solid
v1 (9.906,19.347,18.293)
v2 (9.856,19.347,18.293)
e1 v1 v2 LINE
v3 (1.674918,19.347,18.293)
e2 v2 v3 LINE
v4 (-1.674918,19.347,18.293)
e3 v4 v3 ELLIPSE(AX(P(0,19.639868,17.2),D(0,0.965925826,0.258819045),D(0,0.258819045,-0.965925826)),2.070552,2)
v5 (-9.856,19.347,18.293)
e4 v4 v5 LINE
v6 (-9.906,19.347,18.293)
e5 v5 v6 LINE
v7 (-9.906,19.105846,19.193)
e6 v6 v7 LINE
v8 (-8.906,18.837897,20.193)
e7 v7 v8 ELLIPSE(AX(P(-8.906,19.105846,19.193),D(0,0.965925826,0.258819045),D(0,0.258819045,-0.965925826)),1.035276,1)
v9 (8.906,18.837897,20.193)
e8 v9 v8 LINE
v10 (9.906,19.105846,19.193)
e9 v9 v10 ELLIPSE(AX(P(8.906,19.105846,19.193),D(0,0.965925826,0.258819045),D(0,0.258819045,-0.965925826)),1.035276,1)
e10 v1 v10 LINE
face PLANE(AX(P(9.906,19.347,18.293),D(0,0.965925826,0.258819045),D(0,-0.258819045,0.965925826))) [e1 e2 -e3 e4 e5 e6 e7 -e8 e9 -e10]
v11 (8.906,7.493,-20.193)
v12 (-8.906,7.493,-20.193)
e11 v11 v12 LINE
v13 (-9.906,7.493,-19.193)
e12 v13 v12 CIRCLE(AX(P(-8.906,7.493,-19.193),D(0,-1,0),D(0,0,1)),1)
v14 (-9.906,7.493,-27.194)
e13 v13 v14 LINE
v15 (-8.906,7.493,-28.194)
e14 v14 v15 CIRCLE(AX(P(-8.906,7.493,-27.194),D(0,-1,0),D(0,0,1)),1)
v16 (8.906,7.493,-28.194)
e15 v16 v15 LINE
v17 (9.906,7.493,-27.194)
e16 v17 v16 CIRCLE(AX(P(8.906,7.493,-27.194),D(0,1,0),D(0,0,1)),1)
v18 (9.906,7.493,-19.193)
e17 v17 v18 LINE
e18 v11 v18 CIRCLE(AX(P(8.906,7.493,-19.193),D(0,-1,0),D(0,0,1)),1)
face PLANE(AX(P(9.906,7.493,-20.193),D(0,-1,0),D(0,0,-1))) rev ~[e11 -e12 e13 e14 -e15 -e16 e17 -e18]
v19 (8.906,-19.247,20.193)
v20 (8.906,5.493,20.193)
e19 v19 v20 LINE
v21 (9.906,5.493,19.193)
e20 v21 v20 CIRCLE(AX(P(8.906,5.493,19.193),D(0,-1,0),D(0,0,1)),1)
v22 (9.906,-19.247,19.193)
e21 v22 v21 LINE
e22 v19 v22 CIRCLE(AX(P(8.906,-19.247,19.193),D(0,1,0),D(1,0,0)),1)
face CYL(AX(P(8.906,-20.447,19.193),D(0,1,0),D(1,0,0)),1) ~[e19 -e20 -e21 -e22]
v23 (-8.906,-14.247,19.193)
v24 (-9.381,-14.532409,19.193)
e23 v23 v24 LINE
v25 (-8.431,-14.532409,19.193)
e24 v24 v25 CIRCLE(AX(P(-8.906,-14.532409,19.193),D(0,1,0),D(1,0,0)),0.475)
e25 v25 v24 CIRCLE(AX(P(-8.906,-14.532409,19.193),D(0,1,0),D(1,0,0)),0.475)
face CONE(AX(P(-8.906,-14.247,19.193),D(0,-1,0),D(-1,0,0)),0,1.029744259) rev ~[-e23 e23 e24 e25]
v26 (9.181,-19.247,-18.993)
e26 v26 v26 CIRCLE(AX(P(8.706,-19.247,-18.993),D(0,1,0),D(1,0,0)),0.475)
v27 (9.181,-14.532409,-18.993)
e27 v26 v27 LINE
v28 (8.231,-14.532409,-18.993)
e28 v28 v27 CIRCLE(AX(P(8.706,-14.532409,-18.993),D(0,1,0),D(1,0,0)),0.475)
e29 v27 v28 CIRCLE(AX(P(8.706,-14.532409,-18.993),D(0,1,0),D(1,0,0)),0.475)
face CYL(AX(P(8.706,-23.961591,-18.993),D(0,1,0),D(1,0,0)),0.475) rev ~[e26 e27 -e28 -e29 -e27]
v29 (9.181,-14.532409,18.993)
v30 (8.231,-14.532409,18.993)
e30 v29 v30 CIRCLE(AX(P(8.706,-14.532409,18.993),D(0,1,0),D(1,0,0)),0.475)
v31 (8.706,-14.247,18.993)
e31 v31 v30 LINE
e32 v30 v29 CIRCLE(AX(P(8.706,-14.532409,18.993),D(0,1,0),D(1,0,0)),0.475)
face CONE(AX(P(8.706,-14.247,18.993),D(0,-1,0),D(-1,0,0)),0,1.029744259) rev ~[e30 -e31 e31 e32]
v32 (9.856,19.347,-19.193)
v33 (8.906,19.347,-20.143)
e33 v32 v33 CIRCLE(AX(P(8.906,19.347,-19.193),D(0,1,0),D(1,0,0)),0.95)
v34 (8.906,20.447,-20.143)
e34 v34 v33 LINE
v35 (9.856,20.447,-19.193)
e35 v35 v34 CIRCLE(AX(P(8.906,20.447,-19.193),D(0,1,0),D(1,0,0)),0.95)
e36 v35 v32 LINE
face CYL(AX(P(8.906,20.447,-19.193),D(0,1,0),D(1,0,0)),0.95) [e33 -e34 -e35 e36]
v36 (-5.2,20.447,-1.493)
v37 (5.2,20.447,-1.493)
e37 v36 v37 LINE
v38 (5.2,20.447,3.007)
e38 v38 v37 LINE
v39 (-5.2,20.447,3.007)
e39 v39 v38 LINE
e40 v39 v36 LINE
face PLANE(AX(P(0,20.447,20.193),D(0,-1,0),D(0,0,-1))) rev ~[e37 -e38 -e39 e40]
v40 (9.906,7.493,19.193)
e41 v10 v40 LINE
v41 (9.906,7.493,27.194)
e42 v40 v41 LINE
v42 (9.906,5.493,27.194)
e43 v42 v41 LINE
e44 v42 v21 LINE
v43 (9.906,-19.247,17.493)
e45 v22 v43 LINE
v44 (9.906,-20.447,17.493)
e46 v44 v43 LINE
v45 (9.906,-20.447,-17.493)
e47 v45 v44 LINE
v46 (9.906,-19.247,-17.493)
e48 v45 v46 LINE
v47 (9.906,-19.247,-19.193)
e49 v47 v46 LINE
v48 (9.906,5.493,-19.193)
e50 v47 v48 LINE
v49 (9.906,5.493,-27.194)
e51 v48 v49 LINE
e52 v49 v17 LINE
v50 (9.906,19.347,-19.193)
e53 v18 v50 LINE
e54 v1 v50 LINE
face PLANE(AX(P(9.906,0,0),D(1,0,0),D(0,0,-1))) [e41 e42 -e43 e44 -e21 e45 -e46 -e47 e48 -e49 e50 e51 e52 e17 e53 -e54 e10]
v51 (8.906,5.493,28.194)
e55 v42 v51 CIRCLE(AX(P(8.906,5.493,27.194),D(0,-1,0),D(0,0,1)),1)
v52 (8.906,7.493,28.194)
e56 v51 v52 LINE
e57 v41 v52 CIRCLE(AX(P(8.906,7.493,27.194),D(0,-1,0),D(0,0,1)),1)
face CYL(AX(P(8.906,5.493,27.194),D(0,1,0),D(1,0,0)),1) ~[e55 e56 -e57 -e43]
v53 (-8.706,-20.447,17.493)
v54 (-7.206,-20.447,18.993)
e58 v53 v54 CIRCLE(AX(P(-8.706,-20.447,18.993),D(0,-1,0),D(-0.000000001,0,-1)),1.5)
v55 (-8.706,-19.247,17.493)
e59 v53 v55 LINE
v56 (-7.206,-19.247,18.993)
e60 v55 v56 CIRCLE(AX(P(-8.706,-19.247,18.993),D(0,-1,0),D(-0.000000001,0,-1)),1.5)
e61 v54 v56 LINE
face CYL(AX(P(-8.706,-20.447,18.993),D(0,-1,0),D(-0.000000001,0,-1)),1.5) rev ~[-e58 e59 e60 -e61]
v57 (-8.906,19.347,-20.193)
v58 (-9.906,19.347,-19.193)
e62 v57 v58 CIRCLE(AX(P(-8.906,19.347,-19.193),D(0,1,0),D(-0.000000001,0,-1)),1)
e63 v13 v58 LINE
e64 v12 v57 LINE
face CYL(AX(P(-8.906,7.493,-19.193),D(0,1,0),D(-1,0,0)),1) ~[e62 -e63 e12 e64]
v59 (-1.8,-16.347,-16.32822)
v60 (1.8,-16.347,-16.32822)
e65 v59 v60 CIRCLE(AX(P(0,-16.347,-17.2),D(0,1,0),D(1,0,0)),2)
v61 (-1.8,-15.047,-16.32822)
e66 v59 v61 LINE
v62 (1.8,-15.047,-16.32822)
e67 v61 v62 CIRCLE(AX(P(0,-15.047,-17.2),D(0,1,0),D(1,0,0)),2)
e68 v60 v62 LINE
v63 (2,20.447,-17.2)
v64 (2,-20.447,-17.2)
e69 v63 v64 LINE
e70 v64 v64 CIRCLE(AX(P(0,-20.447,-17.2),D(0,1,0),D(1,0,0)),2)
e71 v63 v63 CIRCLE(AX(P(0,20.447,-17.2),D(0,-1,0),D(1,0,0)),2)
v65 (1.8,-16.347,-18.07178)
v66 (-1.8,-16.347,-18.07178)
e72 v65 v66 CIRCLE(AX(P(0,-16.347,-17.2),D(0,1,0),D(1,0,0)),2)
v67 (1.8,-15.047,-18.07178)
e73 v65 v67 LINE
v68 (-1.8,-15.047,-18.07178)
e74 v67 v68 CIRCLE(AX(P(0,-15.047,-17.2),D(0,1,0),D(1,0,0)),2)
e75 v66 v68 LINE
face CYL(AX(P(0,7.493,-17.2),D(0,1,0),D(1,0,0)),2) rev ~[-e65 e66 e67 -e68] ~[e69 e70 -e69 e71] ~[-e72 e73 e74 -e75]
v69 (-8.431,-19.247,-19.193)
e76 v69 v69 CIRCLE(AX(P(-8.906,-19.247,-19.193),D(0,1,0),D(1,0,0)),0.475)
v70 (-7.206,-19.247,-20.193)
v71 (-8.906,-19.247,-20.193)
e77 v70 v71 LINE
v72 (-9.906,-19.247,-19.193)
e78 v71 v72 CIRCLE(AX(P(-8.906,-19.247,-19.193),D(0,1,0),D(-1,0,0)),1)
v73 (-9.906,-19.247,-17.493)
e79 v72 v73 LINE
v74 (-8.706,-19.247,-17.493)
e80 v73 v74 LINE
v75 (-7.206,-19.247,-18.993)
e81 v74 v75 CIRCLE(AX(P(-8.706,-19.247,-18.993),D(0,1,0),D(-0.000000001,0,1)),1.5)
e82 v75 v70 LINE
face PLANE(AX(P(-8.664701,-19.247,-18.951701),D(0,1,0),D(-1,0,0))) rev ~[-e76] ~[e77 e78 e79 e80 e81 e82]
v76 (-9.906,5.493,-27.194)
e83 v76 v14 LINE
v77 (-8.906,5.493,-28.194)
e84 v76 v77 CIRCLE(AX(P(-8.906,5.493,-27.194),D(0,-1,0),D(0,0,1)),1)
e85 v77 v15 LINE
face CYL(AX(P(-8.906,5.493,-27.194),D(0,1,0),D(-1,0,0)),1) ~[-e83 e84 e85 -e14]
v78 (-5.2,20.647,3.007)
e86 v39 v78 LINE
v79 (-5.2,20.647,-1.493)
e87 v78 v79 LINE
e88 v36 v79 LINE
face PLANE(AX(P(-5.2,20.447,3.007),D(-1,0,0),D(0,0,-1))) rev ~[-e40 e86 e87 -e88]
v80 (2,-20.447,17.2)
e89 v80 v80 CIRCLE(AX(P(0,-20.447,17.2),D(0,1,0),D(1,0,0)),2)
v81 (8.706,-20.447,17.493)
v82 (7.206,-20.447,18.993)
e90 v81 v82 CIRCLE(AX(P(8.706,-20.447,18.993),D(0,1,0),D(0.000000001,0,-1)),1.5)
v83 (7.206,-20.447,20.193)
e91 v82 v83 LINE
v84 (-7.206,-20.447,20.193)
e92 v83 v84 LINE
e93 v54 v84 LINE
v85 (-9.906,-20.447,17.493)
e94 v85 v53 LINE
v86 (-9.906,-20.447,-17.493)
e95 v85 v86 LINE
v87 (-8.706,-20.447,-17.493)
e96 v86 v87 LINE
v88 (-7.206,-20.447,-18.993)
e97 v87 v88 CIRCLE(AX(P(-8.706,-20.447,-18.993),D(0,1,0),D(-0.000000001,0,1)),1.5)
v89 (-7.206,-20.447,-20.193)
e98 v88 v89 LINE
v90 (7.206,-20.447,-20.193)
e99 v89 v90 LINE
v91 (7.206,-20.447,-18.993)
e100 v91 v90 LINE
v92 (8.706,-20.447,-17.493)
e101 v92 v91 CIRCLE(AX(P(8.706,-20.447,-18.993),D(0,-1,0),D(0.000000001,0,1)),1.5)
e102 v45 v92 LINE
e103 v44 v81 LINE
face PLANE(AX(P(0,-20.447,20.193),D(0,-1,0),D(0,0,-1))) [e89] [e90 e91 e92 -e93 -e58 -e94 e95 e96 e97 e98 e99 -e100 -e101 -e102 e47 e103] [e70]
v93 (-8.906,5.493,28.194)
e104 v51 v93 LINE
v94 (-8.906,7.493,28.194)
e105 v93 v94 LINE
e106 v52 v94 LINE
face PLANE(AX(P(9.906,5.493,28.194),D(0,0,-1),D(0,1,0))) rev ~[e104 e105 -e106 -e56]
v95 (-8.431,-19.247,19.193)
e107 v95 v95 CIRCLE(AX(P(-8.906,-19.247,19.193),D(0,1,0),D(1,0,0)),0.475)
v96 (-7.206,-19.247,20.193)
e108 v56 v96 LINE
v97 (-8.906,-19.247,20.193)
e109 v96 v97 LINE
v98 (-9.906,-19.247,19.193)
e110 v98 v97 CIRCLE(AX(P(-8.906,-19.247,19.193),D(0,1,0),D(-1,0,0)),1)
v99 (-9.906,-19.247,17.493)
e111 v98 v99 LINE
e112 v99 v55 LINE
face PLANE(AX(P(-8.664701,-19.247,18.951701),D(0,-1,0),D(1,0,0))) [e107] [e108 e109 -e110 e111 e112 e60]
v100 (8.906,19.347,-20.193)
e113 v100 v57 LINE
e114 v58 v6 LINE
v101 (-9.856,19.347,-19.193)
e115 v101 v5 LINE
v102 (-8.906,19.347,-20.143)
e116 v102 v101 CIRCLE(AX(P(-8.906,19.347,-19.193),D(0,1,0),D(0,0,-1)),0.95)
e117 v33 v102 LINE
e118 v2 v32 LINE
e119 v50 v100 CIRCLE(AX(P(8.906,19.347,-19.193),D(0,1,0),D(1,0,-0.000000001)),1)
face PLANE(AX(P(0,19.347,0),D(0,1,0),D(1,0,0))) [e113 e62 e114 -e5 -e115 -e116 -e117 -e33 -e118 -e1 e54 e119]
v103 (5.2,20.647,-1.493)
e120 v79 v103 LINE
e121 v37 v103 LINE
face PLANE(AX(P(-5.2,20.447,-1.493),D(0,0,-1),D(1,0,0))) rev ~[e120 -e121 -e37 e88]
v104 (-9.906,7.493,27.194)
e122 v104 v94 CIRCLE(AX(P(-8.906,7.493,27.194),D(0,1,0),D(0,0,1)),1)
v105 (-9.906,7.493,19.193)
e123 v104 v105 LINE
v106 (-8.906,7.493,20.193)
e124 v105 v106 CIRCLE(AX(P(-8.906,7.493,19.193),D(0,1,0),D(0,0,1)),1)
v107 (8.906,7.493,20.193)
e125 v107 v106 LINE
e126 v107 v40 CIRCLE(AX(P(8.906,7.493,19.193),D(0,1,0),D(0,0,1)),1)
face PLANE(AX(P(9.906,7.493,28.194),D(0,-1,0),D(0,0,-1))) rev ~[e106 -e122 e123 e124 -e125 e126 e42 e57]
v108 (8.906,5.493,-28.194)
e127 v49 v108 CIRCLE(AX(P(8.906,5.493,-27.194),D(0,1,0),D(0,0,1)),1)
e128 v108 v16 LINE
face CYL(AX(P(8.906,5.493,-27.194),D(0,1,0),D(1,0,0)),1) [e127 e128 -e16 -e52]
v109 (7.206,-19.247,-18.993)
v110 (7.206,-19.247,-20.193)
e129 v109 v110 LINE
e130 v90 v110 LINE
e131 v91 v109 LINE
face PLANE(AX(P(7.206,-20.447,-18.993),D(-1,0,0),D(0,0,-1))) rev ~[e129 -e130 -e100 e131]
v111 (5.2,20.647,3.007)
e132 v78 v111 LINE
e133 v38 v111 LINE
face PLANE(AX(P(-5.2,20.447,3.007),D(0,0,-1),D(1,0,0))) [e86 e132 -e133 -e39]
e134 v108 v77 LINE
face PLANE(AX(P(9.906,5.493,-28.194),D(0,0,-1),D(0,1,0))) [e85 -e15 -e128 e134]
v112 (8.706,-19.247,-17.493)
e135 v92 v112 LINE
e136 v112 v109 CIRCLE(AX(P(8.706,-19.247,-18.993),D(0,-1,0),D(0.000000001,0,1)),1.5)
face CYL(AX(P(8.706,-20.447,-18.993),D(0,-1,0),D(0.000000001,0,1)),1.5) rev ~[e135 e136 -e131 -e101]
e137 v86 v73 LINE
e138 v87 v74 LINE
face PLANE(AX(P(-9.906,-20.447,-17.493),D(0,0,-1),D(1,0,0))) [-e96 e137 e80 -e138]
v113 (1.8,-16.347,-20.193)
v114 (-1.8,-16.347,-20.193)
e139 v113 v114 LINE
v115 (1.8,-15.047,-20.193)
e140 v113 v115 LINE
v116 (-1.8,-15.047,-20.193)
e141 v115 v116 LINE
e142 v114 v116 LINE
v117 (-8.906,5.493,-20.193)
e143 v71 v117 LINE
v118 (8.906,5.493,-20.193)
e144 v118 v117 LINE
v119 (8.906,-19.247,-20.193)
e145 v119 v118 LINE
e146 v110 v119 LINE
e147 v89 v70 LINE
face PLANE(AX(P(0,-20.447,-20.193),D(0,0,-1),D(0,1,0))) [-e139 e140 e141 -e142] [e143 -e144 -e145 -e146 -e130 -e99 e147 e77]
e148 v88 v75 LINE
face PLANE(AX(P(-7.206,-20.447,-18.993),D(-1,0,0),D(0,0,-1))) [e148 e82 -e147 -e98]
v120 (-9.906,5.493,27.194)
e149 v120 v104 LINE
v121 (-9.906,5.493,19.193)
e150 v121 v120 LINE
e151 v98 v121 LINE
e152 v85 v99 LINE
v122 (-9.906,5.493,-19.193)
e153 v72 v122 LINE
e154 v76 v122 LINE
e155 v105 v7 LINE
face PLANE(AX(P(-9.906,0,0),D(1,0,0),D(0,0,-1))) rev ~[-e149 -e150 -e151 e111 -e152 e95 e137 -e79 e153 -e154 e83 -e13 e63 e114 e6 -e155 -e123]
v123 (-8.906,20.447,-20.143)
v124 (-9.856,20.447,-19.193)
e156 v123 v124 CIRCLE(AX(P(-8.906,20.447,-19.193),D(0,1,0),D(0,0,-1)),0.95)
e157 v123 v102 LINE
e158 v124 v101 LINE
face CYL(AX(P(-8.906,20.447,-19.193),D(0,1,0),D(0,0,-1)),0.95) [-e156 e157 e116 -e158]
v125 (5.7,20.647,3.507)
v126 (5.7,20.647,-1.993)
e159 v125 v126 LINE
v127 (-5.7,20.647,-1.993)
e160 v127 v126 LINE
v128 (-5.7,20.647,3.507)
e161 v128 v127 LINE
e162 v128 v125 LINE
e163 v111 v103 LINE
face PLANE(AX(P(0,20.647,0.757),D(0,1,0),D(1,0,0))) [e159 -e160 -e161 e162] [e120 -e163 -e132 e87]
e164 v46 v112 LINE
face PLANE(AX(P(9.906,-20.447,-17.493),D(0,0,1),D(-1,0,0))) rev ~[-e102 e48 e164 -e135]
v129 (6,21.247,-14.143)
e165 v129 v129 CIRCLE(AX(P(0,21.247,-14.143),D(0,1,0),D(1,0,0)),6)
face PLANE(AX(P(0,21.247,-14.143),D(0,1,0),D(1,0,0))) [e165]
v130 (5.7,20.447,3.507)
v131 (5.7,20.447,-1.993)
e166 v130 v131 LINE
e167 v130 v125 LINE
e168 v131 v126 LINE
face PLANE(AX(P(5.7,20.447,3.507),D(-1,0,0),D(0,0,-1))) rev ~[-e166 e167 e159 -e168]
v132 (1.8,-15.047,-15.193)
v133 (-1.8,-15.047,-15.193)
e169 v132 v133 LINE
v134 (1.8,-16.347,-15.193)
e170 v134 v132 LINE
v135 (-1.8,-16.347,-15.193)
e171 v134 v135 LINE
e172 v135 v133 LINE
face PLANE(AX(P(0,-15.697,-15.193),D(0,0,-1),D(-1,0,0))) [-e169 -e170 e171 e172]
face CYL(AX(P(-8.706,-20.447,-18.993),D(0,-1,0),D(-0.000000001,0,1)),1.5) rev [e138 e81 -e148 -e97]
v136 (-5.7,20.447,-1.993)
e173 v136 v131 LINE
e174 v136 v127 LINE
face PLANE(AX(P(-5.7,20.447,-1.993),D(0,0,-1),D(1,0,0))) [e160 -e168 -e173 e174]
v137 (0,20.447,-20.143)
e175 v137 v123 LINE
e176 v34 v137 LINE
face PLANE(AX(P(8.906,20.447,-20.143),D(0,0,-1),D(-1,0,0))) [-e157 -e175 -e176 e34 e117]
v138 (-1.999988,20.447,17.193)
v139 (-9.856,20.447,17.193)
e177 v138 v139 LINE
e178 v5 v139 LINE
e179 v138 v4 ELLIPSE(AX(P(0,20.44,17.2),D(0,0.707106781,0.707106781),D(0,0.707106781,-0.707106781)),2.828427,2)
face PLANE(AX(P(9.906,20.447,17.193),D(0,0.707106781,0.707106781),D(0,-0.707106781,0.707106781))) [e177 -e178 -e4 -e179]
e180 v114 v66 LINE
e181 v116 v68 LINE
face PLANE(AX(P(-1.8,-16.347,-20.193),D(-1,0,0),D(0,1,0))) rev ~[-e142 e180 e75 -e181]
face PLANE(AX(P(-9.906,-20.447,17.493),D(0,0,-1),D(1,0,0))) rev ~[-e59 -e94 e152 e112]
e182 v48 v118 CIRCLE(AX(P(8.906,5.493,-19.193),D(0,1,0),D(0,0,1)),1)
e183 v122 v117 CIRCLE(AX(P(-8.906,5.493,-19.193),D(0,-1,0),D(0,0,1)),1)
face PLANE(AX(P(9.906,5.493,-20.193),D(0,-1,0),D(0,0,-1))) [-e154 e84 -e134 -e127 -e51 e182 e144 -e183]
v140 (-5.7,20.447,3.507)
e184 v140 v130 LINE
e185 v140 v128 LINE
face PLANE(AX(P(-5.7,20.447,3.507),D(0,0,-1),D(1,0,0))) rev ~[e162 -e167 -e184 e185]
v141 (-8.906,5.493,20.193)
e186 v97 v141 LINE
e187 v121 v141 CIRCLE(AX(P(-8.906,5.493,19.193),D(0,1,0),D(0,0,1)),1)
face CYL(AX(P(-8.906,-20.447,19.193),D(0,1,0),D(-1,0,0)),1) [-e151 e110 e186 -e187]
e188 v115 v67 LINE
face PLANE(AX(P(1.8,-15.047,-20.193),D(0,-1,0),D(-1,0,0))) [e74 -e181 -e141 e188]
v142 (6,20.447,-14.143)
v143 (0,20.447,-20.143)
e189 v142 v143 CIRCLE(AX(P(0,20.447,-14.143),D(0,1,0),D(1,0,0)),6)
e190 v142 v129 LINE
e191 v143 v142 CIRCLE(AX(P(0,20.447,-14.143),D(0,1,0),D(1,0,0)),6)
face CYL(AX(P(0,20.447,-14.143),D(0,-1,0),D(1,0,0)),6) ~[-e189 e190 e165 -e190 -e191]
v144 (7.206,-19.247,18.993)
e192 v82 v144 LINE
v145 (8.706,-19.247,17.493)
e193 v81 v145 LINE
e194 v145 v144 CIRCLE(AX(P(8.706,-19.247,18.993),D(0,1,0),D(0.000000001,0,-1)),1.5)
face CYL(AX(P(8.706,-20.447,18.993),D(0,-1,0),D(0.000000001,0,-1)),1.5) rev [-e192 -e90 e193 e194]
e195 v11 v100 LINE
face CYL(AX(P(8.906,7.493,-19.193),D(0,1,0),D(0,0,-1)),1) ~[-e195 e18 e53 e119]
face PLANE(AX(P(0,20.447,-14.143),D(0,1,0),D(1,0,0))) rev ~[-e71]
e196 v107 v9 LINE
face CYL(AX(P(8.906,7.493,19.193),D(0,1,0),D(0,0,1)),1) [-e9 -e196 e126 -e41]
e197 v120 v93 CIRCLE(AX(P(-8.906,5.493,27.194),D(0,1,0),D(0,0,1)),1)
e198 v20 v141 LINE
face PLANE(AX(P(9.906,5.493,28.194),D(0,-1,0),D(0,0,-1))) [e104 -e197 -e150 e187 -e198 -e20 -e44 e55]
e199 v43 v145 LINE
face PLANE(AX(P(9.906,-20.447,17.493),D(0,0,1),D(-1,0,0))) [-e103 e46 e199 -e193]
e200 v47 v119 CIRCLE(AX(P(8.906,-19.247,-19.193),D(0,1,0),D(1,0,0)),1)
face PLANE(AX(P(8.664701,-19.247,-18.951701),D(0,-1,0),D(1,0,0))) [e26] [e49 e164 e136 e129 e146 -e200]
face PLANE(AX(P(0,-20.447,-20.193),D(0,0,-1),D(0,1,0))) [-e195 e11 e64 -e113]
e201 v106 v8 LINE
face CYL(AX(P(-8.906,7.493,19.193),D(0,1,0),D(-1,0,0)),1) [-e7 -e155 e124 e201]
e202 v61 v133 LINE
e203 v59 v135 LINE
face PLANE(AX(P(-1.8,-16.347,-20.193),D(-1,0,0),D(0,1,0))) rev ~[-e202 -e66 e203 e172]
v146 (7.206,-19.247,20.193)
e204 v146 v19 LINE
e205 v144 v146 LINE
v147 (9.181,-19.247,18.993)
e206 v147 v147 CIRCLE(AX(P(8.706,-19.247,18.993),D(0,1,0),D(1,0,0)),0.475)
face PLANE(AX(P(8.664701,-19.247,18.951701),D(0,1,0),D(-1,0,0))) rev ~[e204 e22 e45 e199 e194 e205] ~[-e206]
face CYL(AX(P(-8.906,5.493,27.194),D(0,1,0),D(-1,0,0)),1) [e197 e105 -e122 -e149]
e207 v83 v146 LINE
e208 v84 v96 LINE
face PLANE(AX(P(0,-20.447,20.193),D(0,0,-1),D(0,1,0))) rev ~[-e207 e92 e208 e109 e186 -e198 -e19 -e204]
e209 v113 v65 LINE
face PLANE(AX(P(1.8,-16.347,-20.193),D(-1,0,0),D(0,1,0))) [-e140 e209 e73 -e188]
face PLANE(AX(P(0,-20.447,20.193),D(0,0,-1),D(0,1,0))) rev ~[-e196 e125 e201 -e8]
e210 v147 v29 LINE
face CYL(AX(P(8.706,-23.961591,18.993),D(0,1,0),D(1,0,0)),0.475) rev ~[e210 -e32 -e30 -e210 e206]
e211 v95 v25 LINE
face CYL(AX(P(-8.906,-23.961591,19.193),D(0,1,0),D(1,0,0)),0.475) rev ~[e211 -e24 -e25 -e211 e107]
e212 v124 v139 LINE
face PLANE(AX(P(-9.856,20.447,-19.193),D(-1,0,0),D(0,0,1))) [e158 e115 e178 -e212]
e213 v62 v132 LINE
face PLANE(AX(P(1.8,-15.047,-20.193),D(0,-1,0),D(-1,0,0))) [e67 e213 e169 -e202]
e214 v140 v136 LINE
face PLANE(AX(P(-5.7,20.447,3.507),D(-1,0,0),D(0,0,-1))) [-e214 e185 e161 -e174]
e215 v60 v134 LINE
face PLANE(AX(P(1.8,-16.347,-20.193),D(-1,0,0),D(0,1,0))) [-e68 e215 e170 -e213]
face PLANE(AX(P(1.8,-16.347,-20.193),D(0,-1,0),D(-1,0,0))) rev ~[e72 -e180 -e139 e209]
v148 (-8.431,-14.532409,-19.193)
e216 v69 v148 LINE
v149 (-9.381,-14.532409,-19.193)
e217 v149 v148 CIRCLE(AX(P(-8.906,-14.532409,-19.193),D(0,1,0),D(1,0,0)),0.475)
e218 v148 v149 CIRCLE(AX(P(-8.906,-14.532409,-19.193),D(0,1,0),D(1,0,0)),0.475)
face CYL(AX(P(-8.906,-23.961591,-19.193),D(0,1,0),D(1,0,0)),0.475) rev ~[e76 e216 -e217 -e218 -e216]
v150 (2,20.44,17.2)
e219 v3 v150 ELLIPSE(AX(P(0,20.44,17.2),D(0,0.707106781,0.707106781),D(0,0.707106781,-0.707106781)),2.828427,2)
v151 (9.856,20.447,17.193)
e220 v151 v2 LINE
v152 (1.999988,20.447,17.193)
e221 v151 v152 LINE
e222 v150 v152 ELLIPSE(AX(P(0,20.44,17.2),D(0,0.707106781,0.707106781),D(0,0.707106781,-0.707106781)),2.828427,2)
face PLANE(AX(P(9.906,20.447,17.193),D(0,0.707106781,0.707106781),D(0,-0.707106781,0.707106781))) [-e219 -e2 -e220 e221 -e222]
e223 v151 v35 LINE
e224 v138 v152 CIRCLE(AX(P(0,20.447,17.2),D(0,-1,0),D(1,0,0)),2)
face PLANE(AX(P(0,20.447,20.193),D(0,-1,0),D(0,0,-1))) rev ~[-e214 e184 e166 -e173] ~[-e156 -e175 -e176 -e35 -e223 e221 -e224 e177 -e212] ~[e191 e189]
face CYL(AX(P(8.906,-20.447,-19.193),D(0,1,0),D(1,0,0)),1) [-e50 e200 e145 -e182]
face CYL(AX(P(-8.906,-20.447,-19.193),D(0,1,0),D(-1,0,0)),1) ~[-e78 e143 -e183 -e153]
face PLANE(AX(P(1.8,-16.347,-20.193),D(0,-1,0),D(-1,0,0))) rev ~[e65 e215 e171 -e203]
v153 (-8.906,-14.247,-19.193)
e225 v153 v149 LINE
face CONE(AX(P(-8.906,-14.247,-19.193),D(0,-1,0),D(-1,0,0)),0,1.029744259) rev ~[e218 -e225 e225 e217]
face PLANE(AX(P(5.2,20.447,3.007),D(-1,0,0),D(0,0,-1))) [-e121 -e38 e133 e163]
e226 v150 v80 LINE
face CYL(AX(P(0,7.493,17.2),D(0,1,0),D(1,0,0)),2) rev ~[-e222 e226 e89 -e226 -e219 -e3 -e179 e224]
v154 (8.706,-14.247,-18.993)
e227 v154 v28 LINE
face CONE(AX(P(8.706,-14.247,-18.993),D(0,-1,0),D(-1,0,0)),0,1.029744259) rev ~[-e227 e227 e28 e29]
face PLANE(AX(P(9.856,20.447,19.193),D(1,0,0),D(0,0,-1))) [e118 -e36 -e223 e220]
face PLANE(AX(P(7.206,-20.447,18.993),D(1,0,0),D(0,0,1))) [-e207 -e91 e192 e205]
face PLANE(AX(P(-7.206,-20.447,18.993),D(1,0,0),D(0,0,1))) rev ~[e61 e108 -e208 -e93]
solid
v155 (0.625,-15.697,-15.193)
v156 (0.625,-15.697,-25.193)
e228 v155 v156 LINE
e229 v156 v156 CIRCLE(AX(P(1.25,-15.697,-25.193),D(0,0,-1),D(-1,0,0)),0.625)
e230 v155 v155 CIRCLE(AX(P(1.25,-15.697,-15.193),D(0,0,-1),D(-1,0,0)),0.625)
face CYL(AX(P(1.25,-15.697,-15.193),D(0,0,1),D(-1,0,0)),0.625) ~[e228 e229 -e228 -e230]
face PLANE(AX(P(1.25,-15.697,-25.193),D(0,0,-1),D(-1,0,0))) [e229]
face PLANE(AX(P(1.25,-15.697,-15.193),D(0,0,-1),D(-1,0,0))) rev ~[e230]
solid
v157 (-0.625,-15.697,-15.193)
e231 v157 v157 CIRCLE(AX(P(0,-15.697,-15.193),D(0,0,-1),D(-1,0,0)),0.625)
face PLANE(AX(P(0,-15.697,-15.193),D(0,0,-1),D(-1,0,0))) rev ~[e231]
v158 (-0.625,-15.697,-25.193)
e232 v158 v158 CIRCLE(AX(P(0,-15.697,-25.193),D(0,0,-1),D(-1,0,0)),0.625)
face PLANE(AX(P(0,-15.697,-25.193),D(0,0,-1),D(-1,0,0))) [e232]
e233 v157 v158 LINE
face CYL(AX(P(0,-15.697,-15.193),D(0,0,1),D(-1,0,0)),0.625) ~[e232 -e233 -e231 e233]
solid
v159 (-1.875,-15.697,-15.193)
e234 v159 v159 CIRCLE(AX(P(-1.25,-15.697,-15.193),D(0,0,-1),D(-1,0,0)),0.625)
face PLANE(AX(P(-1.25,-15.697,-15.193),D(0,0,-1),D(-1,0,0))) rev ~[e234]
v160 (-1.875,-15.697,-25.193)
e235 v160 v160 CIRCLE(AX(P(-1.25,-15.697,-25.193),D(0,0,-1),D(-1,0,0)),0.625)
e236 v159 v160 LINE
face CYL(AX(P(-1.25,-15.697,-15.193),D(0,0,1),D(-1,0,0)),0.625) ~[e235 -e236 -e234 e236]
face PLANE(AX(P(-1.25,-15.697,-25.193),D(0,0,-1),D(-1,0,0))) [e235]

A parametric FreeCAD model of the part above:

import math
import FreeCAD as App
import Part
import Sketcher
from FreeCAD import Vector
Q = App.Units.Quantity


def edges_at(feature, points):
    """Names of the edges that pass closest to the given points."""
    edges = feature.Shape.Edges
    near = lambda p: min(range(len(edges)), key=lambda i: edges[i].distToShape(Part.Vertex(*p))[0])
    return sorted({f"Edge{near(p) + 1}" for p in points})

doc = App.newDocument("Part")
body = doc.addObject("PartDesign::Body", "Body")

# Sketch on YZ plane
sketch1 = doc.addObject("Sketcher::SketchObject", "Sketch")
body.addObject(sketch1)
sketch1.AttachmentSupport = (doc.YZ_Plane, [""])
sketch1.MapMode = "FlatFace"
sketch1.addGeometry([
    Part.LineSegment(Vector(20.447, 20.193, 0), Vector(-20.447, 20.193, 0)),
    Part.LineSegment(Vector(-20.447, 20.193, 0), Vector(-20.447, -20.193, 0)),
    Part.LineSegment(Vector(-20.447, -20.193, 0), Vector(20.447, -20.193, 0)),
    Part.LineSegment(Vector(20.447, -20.193, 0), Vector(20.447, 20.193, 0)),
], False)
sketch1.addConstraint([
    Sketcher.Constraint("Coincident", 0, 2, 1, 1),
    Sketcher.Constraint("Coincident", 1, 2, 2, 1),
    Sketcher.Constraint("Coincident", 2, 2, 3, 1),
    Sketcher.Constraint("Coincident", 3, 2, 0, 1),
    Sketcher.Constraint("Horizontal", 0),
    Sketcher.Constraint("Vertical", 1),
    Sketcher.Constraint("Horizontal", 2),
    Sketcher.Constraint("Vertical", 3),
    Sketcher.Constraint("Symmetric", 0, 2, 2, 2, -1, 1),
    Sketcher.Constraint("DistanceX", 0, 2, 0, 1, 40.894),
    Sketcher.Constraint("DistanceY", 1, 2, 1, 1, 40.386),
])
pad1 = doc.addObject("PartDesign::Pad", "Pad")
body.addObject(pad1)
pad1.Profile = sketch1
pad1.Length = 19.812
pad1.Midplane = True

# Sketch on YZ plane
sketch2 = doc.addObject("Sketcher::SketchObject", "Sketch001")
body.addObject(sketch2)
sketch2.AttachmentSupport = (doc.YZ_Plane, [""])
sketch2.MapMode = "FlatFace"
sketch2.AttachmentOffset = App.Placement(Vector(0, 0, 9.906), App.Rotation())
sketch2.addGeometry([
    Part.LineSegment(Vector(7.493, 28.194, 0), Vector(5.493, 28.194, 0)),  # 0
    Part.LineSegment(Vector(5.493, 28.194, 0), Vector(5.493, 20.193, 0)),  # 1
    Part.LineSegment(Vector(5.493, 20.193, 0), Vector(7.493, 20.193, 0)),  # 2
    Part.LineSegment(Vector(7.493, 20.193, 0), Vector(7.493, 28.194, 0)),  # 3
    Part.LineSegment(Vector(7.493, -20.193, 0), Vector(5.493, -20.193, 0)),  # 4
    Part.LineSegment(Vector(5.493, -20.193, 0), Vector(5.493, -28.194, 0)),  # 5
    Part.LineSegment(Vector(5.493, -28.194, 0), Vector(7.493, -28.194, 0)),  # 6
    Part.LineSegment(Vector(7.493, -28.194, 0), Vector(7.493, -20.193, 0)),  # 7
], False)
sketch2.addConstraint([
    Sketcher.Constraint("Coincident", 0, 2, 1, 1),
    Sketcher.Constraint("Coincident", 1, 2, 2, 1),
    Sketcher.Constraint("Coincident", 2, 2, 3, 1),
    Sketcher.Constraint("Coincident", 3, 2, 0, 1),
    Sketcher.Constraint("Coincident", 4, 2, 5, 1),
    Sketcher.Constraint("Coincident", 5, 2, 6, 1),
    Sketcher.Constraint("Coincident", 6, 2, 7, 1),
    Sketcher.Constraint("Coincident", 7, 2, 4, 1),
    Sketcher.Constraint("Horizontal", 0),
    Sketcher.Constraint("Vertical", 1),
    Sketcher.Constraint("Horizontal", 2),
    Sketcher.Constraint("Vertical", 3),
    Sketcher.Constraint("Horizontal", 4),
    Sketcher.Constraint("Vertical", 5),
    Sketcher.Constraint("Horizontal", 6),
    Sketcher.Constraint("Vertical", 7),
    Sketcher.Constraint("Symmetric", 1, 2, 4, 2, -1),
    Sketcher.Constraint("Symmetric", 3, 2, 6, 2, -1),
    Sketcher.Constraint("DistanceX", 0, 2, 0, 1, 2.0),
    Sketcher.Constraint("DistanceY", 1, 2, 1, 1, 8.001),
    Sketcher.Constraint("DistanceX", -1, 1, 0, 2, 5.493),
    Sketcher.Constraint("DistanceY", -1, 1, 0, 2, 28.194),
])
pad2 = doc.addObject("PartDesign::Pad", "Pad001")
body.addObject(pad2)
pad2.Profile = sketch2
pad2.Length = 19.812
pad2.Reversed = True

# Sketch on XZ plane
sketch3 = doc.addObject("Sketcher::SketchObject", "Sketch002")
body.addObject(sketch3)
sketch3.AttachmentSupport = (doc.XZ_Plane, [""])
sketch3.MapMode = "FlatFace"
sketch3.AttachmentOffset = App.Placement(Vector(0, 0, -7.493), App.Rotation())
sketch3.addGeometry([
    Part.Circle(Vector(0, -17.2, 0), Vector(0, 0, 1), 2),
    Part.Circle(Vector(0, 17.2, 0), Vector(0, 0, 1), 2),
], False)
sketch3.addConstraint([
    Sketcher.Constraint("Equal", 0, 1),
    Sketcher.Constraint("Symmetric", 0, 3, 1, 3, -1, 1),
    Sketcher.Constraint("PointOnObject", 0, 3, -2),
    Sketcher.Constraint("Diameter", 0, 4.0),
    Sketcher.Constraint("DistanceY", 0, 3, -1, 1, 17.2),
])
pocket1 = doc.addObject("PartDesign::Pocket", "Pocket")
body.addObject(pocket1)
pocket1.Profile = sketch3
pocket1.Type = "ThroughAll"
pocket1.Midplane = True

# Sketch on XZ plane
sketch4 = doc.addObject("Sketcher::SketchObject", "Sketch003")
body.addObject(sketch4)
sketch4.AttachmentSupport = (doc.XZ_Plane, [""])
sketch4.MapMode = "FlatFace"
sketch4.AttachmentOffset = App.Placement(Vector(0, 0, -20.447), App.Rotation())
sketch4.addGeometry(Part.Circle(Vector(0, -14.143, 0), Vector(0, 0, 1), 6), False)
sketch4.addConstraint([
    Sketcher.Constraint("PointOnObject", 0, 3, -2),
    Sketcher.Constraint("Diameter", 0, 12.0),
    Sketcher.Constraint("DistanceY", 0, 3, -1, 1, 14.143),
])
pad3 = doc.addObject("PartDesign::Pad", "Pad002")
body.addObject(pad3)
pad3.Profile = sketch4
pad3.Length = 0.8
pad3.Reversed = True
doc.recompute()

fillet = doc.addObject("PartDesign::Fillet", "Fillet")
body.addObject(fillet)
fillet.Base = (pad3, edges_at(pad3, [
    (9.906, -7.477, -20.193),
    (-9.906, 13.97, -20.193),
    (9.906, 13.97, -20.193),
    (-9.906, -7.477, 20.193),
    (9.906, -7.477, 20.193),
    (9.906, 6.493, 28.194),
    (-9.906, 6.493, 28.194),
    (9.906, 6.493, -28.194),
    (-9.906, 6.493, -28.194),
    (9.906, 13.97, 20.193),
    (-9.906, -7.477, -20.193),
    (-9.906, 13.97, 20.193),
]))
fillet.Radius = 1

# Sketch on XZ plane
sketch5 = doc.addObject("Sketcher::SketchObject", "Sketch004")
body.addObject(sketch5)
sketch5.AttachmentSupport = (doc.XZ_Plane, [""])
sketch5.MapMode = "FlatFace"
sketch5.AttachmentOffset = App.Placement(Vector(0, 0, -20.447), App.Rotation())
sketch5.addGeometry([
    Part.LineSegment(Vector(8.906, -20.193, 0), Vector(-8.906, -20.193, 0)),  # 0
    Part.ArcOfCircle(Part.Circle(Vector(-8.906, -19.193, 0), Vector(0, 0, 1), 1), math.radians(-180), math.radians(-90)),  # 1
    Part.LineSegment(Vector(-9.906, -19.193, 0), Vector(-9.906, 19.193, 0)),  # 2
    Part.ArcOfCircle(Part.Circle(Vector(-8.906, 19.193, 0), Vector(0, 0, 1), 1), math.radians(90), math.radians(180)),  # 3
    Part.LineSegment(Vector(-8.906, 20.193, 0), Vector(8.906, 20.193, 0)),  # 4
    Part.ArcOfCircle(Part.Circle(Vector(8.906, 19.193, 0), Vector(0, 0, 1), 1), math.radians(0), math.radians(90)),  # 5
    Part.LineSegment(Vector(9.906, 19.193, 0), Vector(9.906, -19.193, 0)),  # 6
    Part.ArcOfCircle(Part.Circle(Vector(8.906, -19.193, 0), Vector(0, 0, 1), 1), math.radians(-90), math.radians(0)),  # 7
    Part.LineSegment(Vector(-8.906, -20.143, 0), Vector(8.906, -20.143, 0)),  # 8
    Part.ArcOfCircle(Part.Circle(Vector(8.906, -19.193, 0), Vector(0, 0, 1), 0.95), math.radians(-90), math.radians(0)),  # 9
    Part.LineSegment(Vector(9.856, -19.193, 0), Vector(9.856, 19.193, 0)),  # 10
    Part.ArcOfCircle(Part.Circle(Vector(8.906, 19.193, 0), Vector(0, 0, 1), 0.95), math.radians(0), math.radians(90)),  # 11
    Part.LineSegment(Vector(8.906, 20.143, 0), Vector(-8.906, 20.143, 0)),  # 12
    Part.ArcOfCircle(Part.Circle(Vector(-8.906, 19.193, 0), Vector(0, 0, 1), 0.95), math.radians(90), math.radians(180)),  # 13
    Part.LineSegment(Vector(-9.856, 19.193, 0), Vector(-9.856, -19.193, 0)),  # 14
    Part.ArcOfCircle(Part.Circle(Vector(-8.906, -19.193, 0), Vector(0, 0, 1), 0.95), math.radians(180), math.radians(270)),  # 15
], False)
sketch5.addConstraint([
    Sketcher.Constraint("Tangent", 0, 2, 1, 2),
    Sketcher.Constraint("Tangent", 1, 1, 2, 1),
    Sketcher.Constraint("Tangent", 2, 2, 3, 2),
    Sketcher.Constraint("Tangent", 3, 1, 4, 1),
    Sketcher.Constraint("Tangent", 4, 2, 5, 2),
    Sketcher.Constraint("Tangent", 5, 1, 6, 1),
    Sketcher.Constraint("Tangent", 6, 2, 7, 2),
    Sketcher.Constraint("Tangent", 7, 1, 0, 1),
    Sketcher.Constraint("Tangent", 8, 2, 9, 1),
    Sketcher.Constraint("Tangent", 9, 2, 10, 1),
    Sketcher.Constraint("Tangent", 10, 2, 11, 1),
    Sketcher.Constraint("Tangent", 11, 2, 12, 1),
    Sketcher.Constraint("Tangent", 12, 2, 13, 1),
    Sketcher.Constraint("Tangent", 13, 2, 14, 1),
    Sketcher.Constraint("Tangent", 14, 2, 15, 1),
    Sketcher.Constraint("Tangent", 15, 2, 8, 1),
    Sketcher.Constraint("Horizontal", 0),
    Sketcher.Constraint("Vertical", 2),
    Sketcher.Constraint("Horizontal", 4),
    Sketcher.Constraint("Vertical", 6),
    Sketcher.Constraint("Horizontal", 8),
    Sketcher.Constraint("Vertical", 10),
    Sketcher.Constraint("Horizontal", 12),
    Sketcher.Constraint("Vertical", 14),
    Sketcher.Constraint("Coincident", 9, 3, 7, 3),
    Sketcher.Constraint("Coincident", 11, 3, 5, 3),
    Sketcher.Constraint("Coincident", 13, 3, 3, 3),
    Sketcher.Constraint("Equal", 1, 3),
    Sketcher.Constraint("Equal", 3, 5),
    Sketcher.Constraint("Equal", 5, 7),
    Sketcher.Constraint("Equal", 13, 15),
    Sketcher.Constraint("Symmetric", 1, 3, 5, 3, -1, 1),
    Sketcher.Constraint("Radius", 1, 1.0),
    Sketcher.Constraint("Radius", 9, 0.95),
    Sketcher.Constraint("DistanceX", 0, 2, 0, 1, 17.812),
    Sketcher.Constraint("DistanceY", 2, 1, 2, 2, 38.386),
])
pocket2 = doc.addObject("PartDesign::Pocket", "Pocket001")
body.addObject(pocket2)
pocket2.Profile = sketch5
pocket2.Length = 1.1
pocket2.Reversed = True

# Sketch on YZ plane
sketch6 = doc.addObject("Sketcher::SketchObject", "Sketch005")
body.addObject(sketch6)
sketch6.AttachmentSupport = (doc.YZ_Plane, [""])
sketch6.MapMode = "FlatFace"
sketch6.AttachmentOffset = App.Placement(Vector(0, 0, 9.906), App.Rotation())
sketch6.addGeometry([
    Part.LineSegment(Vector(19.347, 18.293, 0), Vector(20.447, 17.193, 0)),
    Part.LineSegment(Vector(20.447, 17.193, 0), Vector(20.447, 20.193, 0)),
    Part.LineSegment(Vector(20.447, 20.193, 0), Vector(18.837897, 20.193, 0)),
    Part.LineSegment(Vector(18.837897, 20.193, 0), Vector(19.347, 18.293, 0)),
], False)
sketch6.addConstraint([
    Sketcher.Constraint("Coincident", 0, 2, 1, 1),
    Sketcher.Constraint("Coincident", 1, 2, 2, 1),
    Sketcher.Constraint("Coincident", 2, 2, 3, 1),
    Sketcher.Constraint("Coincident", 3, 2, 0, 1),
    Sketcher.Constraint("Vertical", 1),
    Sketcher.Constraint("Horizontal", 2),
    Sketcher.Constraint("DistanceY", 1, 1, 1, 2, 3.0),
    Sketcher.Constraint("Angle", 0, Q("-45 deg")),
    Sketcher.Constraint("Angle", 3, Q("-75 deg")),
    Sketcher.Constraint("DistanceX", 3, 2, 0, 2, 1.1),
    Sketcher.Constraint("DistanceX", -1, 1, 0, 2, 20.447),
    Sketcher.Constraint("DistanceY", -1, 1, 0, 2, 17.193),
])
pocket3 = doc.addObject("PartDesign::Pocket", "Pocket002")
body.addObject(pocket3)
pocket3.Profile = sketch6
pocket3.Type = "ThroughAll"
pocket3.Midplane = True

# Sketch on XZ plane
sketch7 = doc.addObject("Sketcher::SketchObject", "Sketch006")
body.addObject(sketch7)
sketch7.AttachmentSupport = (doc.XZ_Plane, [""])
sketch7.MapMode = "FlatFace"
sketch7.AttachmentOffset = App.Placement(Vector(0, 0, -20.447), App.Rotation())
sketch7.addGeometry([
    Part.LineSegment(Vector(-5.7, -1.993, 0), Vector(-5.7, 3.507, 0)),  # 0
    Part.LineSegment(Vector(-5.7, 3.507, 0), Vector(5.7, 3.507, 0)),  # 1
    Part.LineSegment(Vector(5.7, 3.507, 0), Vector(5.7, -1.993, 0)),  # 2
    Part.LineSegment(Vector(5.7, -1.993, 0), Vector(-5.7, -1.993, 0)),  # 3
    Part.LineSegment(Vector(5.2, 3.007, 0), Vector(-5.2, 3.007, 0)),  # 4
    Part.LineSegment(Vector(-5.2, 3.007, 0), Vector(-5.2, -1.493, 0)),  # 5
    Part.LineSegment(Vector(-5.2, -1.493, 0), Vector(5.2, -1.493, 0)),  # 6
    Part.LineSegment(Vector(5.2, -1.493, 0), Vector(5.2, 3.007, 0)),  # 7
], False)
sketch7.addConstraint([
    Sketcher.Constraint("Coincident", 0, 2, 1, 1),
    Sketcher.Constraint("Coincident", 1, 2, 2, 1),
    Sketcher.Constraint("Coincident", 2, 2, 3, 1),
    Sketcher.Constraint("Coincident", 3, 2, 0, 1),
    Sketcher.Constraint("Coincident", 4, 2, 5, 1),
    Sketcher.Constraint("Coincident", 5, 2, 6, 1),
    Sketcher.Constraint("Coincident", 6, 2, 7, 1),
    Sketcher.Constraint("Coincident", 7, 2, 4, 1),
    Sketcher.Constraint("Vertical", 0),
    Sketcher.Constraint("Horizontal", 1),
    Sketcher.Constraint("Vertical", 2),
    Sketcher.Constraint("Horizontal", 3),
    Sketcher.Constraint("Horizontal", 4),
    Sketcher.Constraint("Vertical", 5),
    Sketcher.Constraint("Horizontal", 6),
    Sketcher.Constraint("Vertical", 7),
    Sketcher.Constraint("DistanceX", 1, 1, 1, 2, 11.4),
    Sketcher.Constraint("DistanceX", 4, 2, 4, 1, 10.4),
    Sketcher.Constraint("DistanceY", 0, 1, 0, 2, 5.5),
    Sketcher.Constraint("DistanceY", 5, 2, 5, 1, 4.5),
    Sketcher.Constraint("DistanceY", 3, 2, 4, 2, 5.0),
    Sketcher.Constraint("DistanceX", 0, 2, -1, 1, 5.7),
    Sketcher.Constraint("DistanceX", 4, 2, -1, 1, 5.2),
    Sketcher.Constraint("DistanceY", -1, 1, 0, 2, 3.507),
])
pad4 = doc.addObject("PartDesign::Pad", "Pad003")
body.addObject(pad4)
pad4.Profile = sketch7
pad4.Length = 0.2
pad4.Reversed = True

# Sketch on XZ plane
sketch8 = doc.addObject("Sketcher::SketchObject", "Sketch007")
body.addObject(sketch8)
sketch8.AttachmentSupport = (doc.XZ_Plane, [""])
sketch8.MapMode = "FlatFace"
sketch8.AttachmentOffset = App.Placement(Vector(0, 0, 20.447), App.Rotation())
sketch8.addGeometry([
    Part.LineSegment(Vector(-7.206, 20.193, 0), Vector(-9.906, 20.193, 0)),  # 0
    Part.LineSegment(Vector(-9.906, 20.193, 0), Vector(-9.906, 17.493, 0)),  # 1
    Part.LineSegment(Vector(-9.906, 17.493, 0), Vector(-8.706, 17.493, 0)),  # 2
    Part.ArcOfCircle(Part.Circle(Vector(-8.706, 18.993, 0), Vector(0, 0, 1), 1.5), math.radians(-90), math.radians(0)),  # 3
    Part.LineSegment(Vector(-7.206, 18.993, 0), Vector(-7.206, 20.193, 0)),  # 4
    Part.LineSegment(Vector(9.906, 17.493, 0), Vector(9.906, 20.193, 0)),  # 5
    Part.LineSegment(Vector(9.906, 20.193, 0), Vector(7.206, 20.193, 0)),  # 6
    Part.LineSegment(Vector(7.206, 20.193, 0), Vector(7.206, 18.993, 0)),  # 7
    Part.ArcOfCircle(Part.Circle(Vector(8.706, 18.993, 0), Vector(0, 0, 1), 1.5), math.radians(180), math.radians(270)),  # 8
    Part.LineSegment(Vector(8.706, 17.493, 0), Vector(9.906, 17.493, 0)),  # 9
    Part.LineSegment(Vector(7.206, -20.193, 0), Vector(9.906, -20.193, 0)),  # 10
    Part.LineSegment(Vector(9.906, -20.193, 0), Vector(9.906, -17.493, 0)),  # 11
    Part.LineSegment(Vector(9.906, -17.493, 0), Vector(8.706, -17.493, 0)),  # 12
    Part.ArcOfCircle(Part.Circle(Vector(8.706, -18.993, 0), Vector(0, 0, 1), 1.5), math.radians(90), math.radians(180)),  # 13
    Part.LineSegment(Vector(7.206, -18.993, 0), Vector(7.206, -20.193, 0)),  # 14
    Part.LineSegment(Vector(-9.906, -17.493, 0), Vector(-9.906, -20.193, 0)),  # 15
    Part.LineSegment(Vector(-9.906, -20.193, 0), Vector(-7.206, -20.193, 0)),  # 16
    Part.LineSegment(Vector(-7.206, -20.193, 0), Vector(-7.206, -18.993, 0)),  # 17
    Part.ArcOfCircle(Part.Circle(Vector(-8.706, -18.993, 0), Vector(0, 0, 1), 1.5), math.radians(0), math.radians(90)),  # 18
    Part.LineSegment(Vector(-8.706, -17.493, 0), Vector(-9.906, -17.493, 0)),  # 19
], False)
sketch8.addConstraint([
    Sketcher.Constraint("Coincident", 0, 2, 1, 1),
    Sketcher.Constraint("Coincident", 1, 2, 2, 1),
    Sketcher.Constraint("Tangent", 2, 2, 3, 1),
    Sketcher.Constraint("Tangent", 3, 2, 4, 1),
    Sketcher.Constraint("Coincident", 4, 2, 0, 1),
    Sketcher.Constraint("Coincident", 5, 2, 6, 1),
    Sketcher.Constraint("Coincident", 6, 2, 7, 1),
    Sketcher.Constraint("Tangent", 7, 2, 8, 1),
    Sketcher.Constraint("Tangent", 8, 2, 9, 1),
    Sketcher.Constraint("Coincident", 9, 2, 5, 1),
    Sketcher.Constraint("Coincident", 10, 2, 11, 1),
    Sketcher.Constraint("Coincident", 11, 2, 12, 1),
    Sketcher.Constraint("Tangent", 12, 2, 13, 1),
    Sketcher.Constraint("Tangent", 13, 2, 14, 1),
    Sketcher.Constraint("Coincident", 14, 2, 10, 1),
    Sketcher.Constraint("Coincident", 15, 2, 16, 1),
    Sketcher.Constraint("Coincident", 16, 2, 17, 1),
    Sketcher.Constraint("Tangent", 17, 2, 18, 1),
    Sketcher.Constraint("Tangent", 18, 2, 19, 1),
    Sketcher.Constraint("Coincident", 19, 2, 15, 1),
    Sketcher.Constraint("Horizontal", 0),
    Sketcher.Constraint("Vertical", 1),
    Sketcher.Constraint("Horizontal", 2),
    Sketcher.Constraint("Vertical", 4),
    Sketcher.Constraint("Vertical", 5),
    Sketcher.Constraint("Horizontal", 6),
    Sketcher.Constraint("Vertical", 7),
    Sketcher.Constraint("Horizontal", 9),
    Sketcher.Constraint("Horizontal", 10),
    Sketcher.Constraint("Vertical", 11),
    Sketcher.Constraint("Horizontal", 12),
    Sketcher.Constraint("Vertical", 14),
    Sketcher.Constraint("Vertical", 15),
    Sketcher.Constraint("Horizontal", 16),
    Sketcher.Constraint("Vertical", 17),
    Sketcher.Constraint("Horizontal", 19),
    Sketcher.Constraint("Equal", 3, 8),
    Sketcher.Constraint("Equal", 8, 13),
    Sketcher.Constraint("Equal", 13, 18),
    Sketcher.Constraint("Symmetric", 3, 3, 13, 3, -1, 1),
    Sketcher.Constraint("Symmetric", 8, 3, 18, 3, -1, 1),
    Sketcher.Constraint("Symmetric", 0, 2, 10, 2, -1, 1),
    Sketcher.Constraint("Symmetric", 5, 2, 15, 2, -1, 1),
    Sketcher.Constraint("Symmetric", 3, 3, 8, 3, -2),
    Sketcher.Constraint("Symmetric", 0, 2, 5, 2, -2),
    Sketcher.Constraint("Equal", 16, 1),
    Sketcher.Constraint("Radius", 3, 1.5),
    Sketcher.Constraint("DistanceX", 0, 2, 0, 1, 2.7),
    Sketcher.Constraint("DistanceX", 3, 3, -1, 1, 8.706),
    Sketcher.Constraint("DistanceY", -1, 1, 3, 3, 18.993),
])
pocket4 = doc.addObject("PartDesign::Pocket", "Pocket003")
body.addObject(pocket4)
pocket4.Profile = sketch8
pocket4.Type = "TwoLengths"
pocket4.Length = 1
pocket4.Length2 = 1.2
pocket4.Reversed = True

# Sketch on XZ plane
sketch9 = doc.addObject("Sketcher::SketchObject", "Sketch008")
body.addObject(sketch9)
sketch9.AttachmentSupport = (doc.XZ_Plane, [""])
sketch9.MapMode = "FlatFace"
sketch9.AttachmentOffset = App.Placement(Vector(0, 0, 19.247), App.Rotation())
sketch9.addGeometry([
    Part.Circle(Vector(8.706, 18.993, 0), Vector(0, 0, 1), 0.475),
    Part.Circle(Vector(-8.906, 19.193, 0), Vector(0, 0, 1), 0.475),
    Part.Circle(Vector(8.706, -18.993, 0), Vector(0, 0, 1), 0.475),
    Part.Circle(Vector(-8.906, -19.193, 0), Vector(0, 0, 1), 0.475),
], False)
sketch9.addConstraint([
    Sketcher.Constraint("Equal", 0, 1),
    Sketcher.Constraint("Equal", 1, 2),
    Sketcher.Constraint("Equal", 2, 3),
    Sketcher.Constraint("Symmetric", 0, 3, 2, 3, -1),
    Sketcher.Constraint("Symmetric", 1, 3, 3, 3, -1),
    Sketcher.Constraint("Diameter", 0, 0.95),
    Sketcher.Constraint("DistanceY", 0, 3, 1, 3, 0.2),
    Sketcher.Constraint("DistanceX", -1, 1, 0, 3, 8.706),
    Sketcher.Constraint("DistanceY", -1, 1, 0, 3, 18.993),
    Sketcher.Constraint("DistanceX", 1, 3, -1, 1, 8.906),
])
doc.recompute()
hole = doc.addObject("PartDesign::Hole", "Hole")
body.addObject(hole)
hole.Profile = sketch9
hole.ThreadType = "None"
hole.Diameter = 0.95
hole.DepthType = "Dimension"
hole.Depth = 4.714591
hole.DrillPoint = "Angled"
hole.DrillPointAngle = 118

# Sketch on XY plane
sketch10 = doc.addObject("Sketcher::SketchObject", "Sketch009")
body.addObject(sketch10)
sketch10.AttachmentSupport = (doc.XY_Plane, [""])
sketch10.MapMode = "FlatFace"
sketch10.AttachmentOffset = App.Placement(Vector(0, 0, -20.193), App.Rotation())
sketch10.addGeometry([
    Part.LineSegment(Vector(1.8, -15.047, 0), Vector(1.8, -16.347, 0)),
    Part.LineSegment(Vector(1.8, -16.347, 0), Vector(-1.8, -16.347, 0)),
    Part.LineSegment(Vector(-1.8, -16.347, 0), Vector(-1.8, -15.047, 0)),
    Part.LineSegment(Vector(-1.8, -15.047, 0), Vector(1.8, -15.047, 0)),
], False)
sketch10.addConstraint([
    Sketcher.Constraint("Coincident", 0, 2, 1, 1),
    Sketcher.Constraint("Coincident", 1, 2, 2, 1),
    Sketcher.Constraint("Coincident", 2, 2, 3, 1),
    Sketcher.Constraint("Coincident", 3, 2, 0, 1),
    Sketcher.Constraint("Vertical", 0),
    Sketcher.Constraint("Horizontal", 1),
    Sketcher.Constraint("Vertical", 2),
    Sketcher.Constraint("Horizontal", 3),
    Sketcher.Constraint("DistanceX", 1, 2, 1, 1, 3.6),
    Sketcher.Constraint("DistanceY", 0, 2, 0, 1, 1.3),
    Sketcher.Constraint("DistanceX", -1, 1, 0, 2, 1.8),
    Sketcher.Constraint("DistanceY", 0, 2, -1, 1, 16.347),
])
pocket5 = doc.addObject("PartDesign::Pocket", "Pocket004")
body.addObject(pocket5)
pocket5.Profile = sketch10
pocket5.Length = 5
pocket5.Reversed = True
body2 = doc.addObject("PartDesign::Body", "Body001")

# Sketch on XY plane
sketch11 = doc.addObject("Sketcher::SketchObject", "Sketch010")
body2.addObject(sketch11)
sketch11.AttachmentSupport = (doc.getObject("XY_Plane001"), [""])
sketch11.MapMode = "FlatFace"
sketch11.AttachmentOffset = App.Placement(Vector(0, 0, -15.193), App.Rotation())
sketch11.addGeometry(Part.Circle(Vector(0, -15.697, 0), Vector(0, 0, 1), 0.625), False)
sketch11.addConstraint([
    Sketcher.Constraint("PointOnObject", 0, 3, -2),
    Sketcher.Constraint("Diameter", 0, 1.25),
    Sketcher.Constraint("DistanceY", 0, 3, -1, 1, 15.697),
])
pad5 = doc.addObject("PartDesign::Pad", "Pad004")
body2.addObject(pad5)
pad5.Profile = sketch11
pad5.Length = 10
pad5.Reversed = True
body3 = doc.addObject("PartDesign::Body", "Body002")

# Sketch on XY plane
sketch12 = doc.addObject("Sketcher::SketchObject", "Sketch011")
body3.addObject(sketch12)
sketch12.AttachmentSupport = (doc.getObject("XY_Plane002"), [""])
sketch12.MapMode = "FlatFace"
sketch12.AttachmentOffset = App.Placement(Vector(0, 0, -15.193), App.Rotation())
sketch12.addGeometry(Part.Circle(Vector(1.25, -15.697, 0), Vector(0, 0, 1), 0.625), False)
sketch12.addConstraint([
    Sketcher.Constraint("Diameter", 0, 1.25),
    Sketcher.Constraint("DistanceX", -1, 1, 0, 3, 1.25),
    Sketcher.Constraint("DistanceY", 0, 3, -1, 1, 15.697),
])
pad6 = doc.addObject("PartDesign::Pad", "Pad005")
body3.addObject(pad6)
pad6.Profile = sketch12
pad6.Length = 10
pad6.Reversed = True
body4 = doc.addObject("PartDesign::Body", "Body003")

# Sketch on XY plane
sketch13 = doc.addObject("Sketcher::SketchObject", "Sketch012")
body4.addObject(sketch13)
sketch13.AttachmentSupport = (doc.getObject("XY_Plane003"), [""])
sketch13.MapMode = "FlatFace"
sketch13.AttachmentOffset = App.Placement(Vector(0, 0, -15.193), App.Rotation())
sketch13.addGeometry(Part.Circle(Vector(-1.25, -15.697, 0), Vector(0, 0, 1), 0.625), False)
sketch13.addConstraint([
    Sketcher.Constraint("Diameter", 0, 1.25),
    Sketcher.Constraint("DistanceX", 0, 3, -1, 1, 1.25),
    Sketcher.Constraint("DistanceY", 0, 3, -1, 1, 15.697),
])
pad7 = doc.addObject("PartDesign::Pad", "Pad006")
body4.addObject(pad7)
pad7.Profile = sketch13
pad7.Length = 10
pad7.Reversed = True

doc.recompute()
